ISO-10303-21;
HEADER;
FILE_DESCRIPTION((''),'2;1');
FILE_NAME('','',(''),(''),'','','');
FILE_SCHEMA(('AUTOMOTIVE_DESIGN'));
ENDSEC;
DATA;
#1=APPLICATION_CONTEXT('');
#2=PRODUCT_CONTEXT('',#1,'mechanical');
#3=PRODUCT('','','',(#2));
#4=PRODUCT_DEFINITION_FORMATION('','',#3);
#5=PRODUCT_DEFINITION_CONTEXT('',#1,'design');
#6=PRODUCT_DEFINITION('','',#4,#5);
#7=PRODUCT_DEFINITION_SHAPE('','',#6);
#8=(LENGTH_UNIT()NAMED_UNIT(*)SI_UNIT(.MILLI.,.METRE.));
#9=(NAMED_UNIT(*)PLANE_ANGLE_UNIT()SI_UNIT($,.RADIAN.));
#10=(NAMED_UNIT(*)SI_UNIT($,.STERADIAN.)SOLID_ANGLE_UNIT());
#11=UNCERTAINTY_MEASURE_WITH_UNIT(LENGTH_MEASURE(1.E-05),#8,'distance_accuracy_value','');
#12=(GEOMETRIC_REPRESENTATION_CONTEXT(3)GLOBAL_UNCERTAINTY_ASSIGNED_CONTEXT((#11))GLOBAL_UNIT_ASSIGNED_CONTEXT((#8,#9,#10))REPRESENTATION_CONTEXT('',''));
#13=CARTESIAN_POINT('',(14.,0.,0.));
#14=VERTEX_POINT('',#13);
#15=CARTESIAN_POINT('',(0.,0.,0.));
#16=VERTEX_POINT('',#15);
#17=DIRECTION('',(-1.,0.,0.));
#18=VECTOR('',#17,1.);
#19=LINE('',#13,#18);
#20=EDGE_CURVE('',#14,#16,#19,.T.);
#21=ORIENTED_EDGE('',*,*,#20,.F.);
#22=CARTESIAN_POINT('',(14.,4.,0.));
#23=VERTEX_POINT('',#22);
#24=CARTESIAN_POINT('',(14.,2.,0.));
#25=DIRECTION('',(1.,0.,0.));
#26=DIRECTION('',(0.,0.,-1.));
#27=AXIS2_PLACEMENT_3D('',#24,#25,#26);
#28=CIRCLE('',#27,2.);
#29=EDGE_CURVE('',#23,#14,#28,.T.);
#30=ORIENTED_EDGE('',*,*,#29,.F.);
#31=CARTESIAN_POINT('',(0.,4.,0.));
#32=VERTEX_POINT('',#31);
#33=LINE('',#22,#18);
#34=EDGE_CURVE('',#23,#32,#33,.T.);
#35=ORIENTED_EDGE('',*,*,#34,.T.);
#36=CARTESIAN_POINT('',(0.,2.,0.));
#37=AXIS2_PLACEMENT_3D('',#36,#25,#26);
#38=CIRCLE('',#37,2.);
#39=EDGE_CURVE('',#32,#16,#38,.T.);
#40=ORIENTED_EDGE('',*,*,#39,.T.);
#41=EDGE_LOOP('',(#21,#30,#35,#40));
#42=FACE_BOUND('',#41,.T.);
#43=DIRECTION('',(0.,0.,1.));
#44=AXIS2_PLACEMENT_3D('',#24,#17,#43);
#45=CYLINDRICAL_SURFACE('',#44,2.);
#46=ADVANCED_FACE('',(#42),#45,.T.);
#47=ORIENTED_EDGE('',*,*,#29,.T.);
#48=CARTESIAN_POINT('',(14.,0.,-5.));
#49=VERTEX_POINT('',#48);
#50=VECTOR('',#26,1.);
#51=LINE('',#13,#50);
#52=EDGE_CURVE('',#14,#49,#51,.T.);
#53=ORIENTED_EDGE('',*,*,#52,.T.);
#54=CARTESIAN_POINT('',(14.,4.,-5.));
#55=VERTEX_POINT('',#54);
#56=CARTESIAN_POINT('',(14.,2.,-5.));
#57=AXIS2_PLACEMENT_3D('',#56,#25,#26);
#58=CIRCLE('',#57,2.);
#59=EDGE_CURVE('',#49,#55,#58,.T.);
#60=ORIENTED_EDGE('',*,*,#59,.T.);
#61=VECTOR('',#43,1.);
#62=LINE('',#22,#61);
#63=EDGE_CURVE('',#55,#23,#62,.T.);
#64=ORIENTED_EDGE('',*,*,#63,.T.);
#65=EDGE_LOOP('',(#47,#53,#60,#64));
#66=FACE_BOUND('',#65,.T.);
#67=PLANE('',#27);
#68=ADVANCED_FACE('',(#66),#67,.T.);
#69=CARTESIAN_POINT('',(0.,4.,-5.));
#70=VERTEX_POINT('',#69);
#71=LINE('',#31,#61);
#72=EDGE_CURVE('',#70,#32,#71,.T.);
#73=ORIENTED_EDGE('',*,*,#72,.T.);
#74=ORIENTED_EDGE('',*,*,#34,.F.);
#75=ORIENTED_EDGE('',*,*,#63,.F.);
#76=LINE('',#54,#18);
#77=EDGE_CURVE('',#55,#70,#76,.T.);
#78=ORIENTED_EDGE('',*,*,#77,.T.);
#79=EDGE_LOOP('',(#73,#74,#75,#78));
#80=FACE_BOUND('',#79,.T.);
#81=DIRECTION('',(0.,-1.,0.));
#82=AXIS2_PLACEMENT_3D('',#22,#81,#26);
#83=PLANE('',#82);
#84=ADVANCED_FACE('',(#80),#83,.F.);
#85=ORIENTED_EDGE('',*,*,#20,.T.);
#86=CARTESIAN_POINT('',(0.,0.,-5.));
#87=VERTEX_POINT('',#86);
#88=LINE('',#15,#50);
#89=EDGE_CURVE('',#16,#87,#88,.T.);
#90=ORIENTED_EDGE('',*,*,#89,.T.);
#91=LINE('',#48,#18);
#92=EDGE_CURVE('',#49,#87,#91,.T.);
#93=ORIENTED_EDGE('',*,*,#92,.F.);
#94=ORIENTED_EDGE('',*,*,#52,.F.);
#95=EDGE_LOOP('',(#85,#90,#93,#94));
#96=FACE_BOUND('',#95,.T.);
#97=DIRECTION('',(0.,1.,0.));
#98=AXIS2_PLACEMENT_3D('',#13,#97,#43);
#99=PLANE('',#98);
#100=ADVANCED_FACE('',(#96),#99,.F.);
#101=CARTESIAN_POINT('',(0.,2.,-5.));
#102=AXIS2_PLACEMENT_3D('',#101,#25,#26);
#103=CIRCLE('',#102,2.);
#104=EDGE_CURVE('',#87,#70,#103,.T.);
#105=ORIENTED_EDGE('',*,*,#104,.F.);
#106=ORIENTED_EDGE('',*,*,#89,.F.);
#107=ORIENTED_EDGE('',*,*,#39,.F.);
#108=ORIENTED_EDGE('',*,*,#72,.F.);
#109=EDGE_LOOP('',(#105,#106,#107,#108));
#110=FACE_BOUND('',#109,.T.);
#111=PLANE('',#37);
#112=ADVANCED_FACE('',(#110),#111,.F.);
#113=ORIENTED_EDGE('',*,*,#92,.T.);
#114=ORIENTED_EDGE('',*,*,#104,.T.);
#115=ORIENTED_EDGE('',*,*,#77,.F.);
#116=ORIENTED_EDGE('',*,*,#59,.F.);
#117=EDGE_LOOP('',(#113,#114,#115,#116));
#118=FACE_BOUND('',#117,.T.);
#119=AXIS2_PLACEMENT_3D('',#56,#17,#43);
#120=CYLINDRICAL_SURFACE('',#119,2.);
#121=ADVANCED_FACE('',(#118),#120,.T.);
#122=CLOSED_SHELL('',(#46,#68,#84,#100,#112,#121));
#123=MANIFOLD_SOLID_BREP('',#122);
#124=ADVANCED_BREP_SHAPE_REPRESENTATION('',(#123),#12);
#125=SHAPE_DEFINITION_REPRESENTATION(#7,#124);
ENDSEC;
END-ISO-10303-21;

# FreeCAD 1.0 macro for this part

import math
import FreeCAD as App
import Part
import Sketcher
from FreeCAD import Vector

doc = App.newDocument("Part")
body = doc.addObject("PartDesign::Body", "Body")

# Sketch on YZ plane
sketch1 = doc.addObject("Sketcher::SketchObject", "Sketch")
body.addObject(sketch1)
sketch1.AttachmentSupport = (doc.YZ_Plane, [""])
sketch1.MapMode = "FlatFace"
sketch1.addGeometry([
    Part.LineSegment(Vector(0, 0, 0), Vector(0, -5, 0)),
    Part.ArcOfCircle(Part.Circle(Vector(2, -5, 0), Vector(0, 0, 1), 2), math.radians(180), math.radians(360)),
    Part.LineSegment(Vector(4, -5, 0), Vector(4, 0, 0)),
    Part.ArcOfCircle(Part.Circle(Vector(2, 0, 0), Vector(0, 0, 1), 2), math.radians(0), math.radians(180)),
], False)
sketch1.addConstraint([
    Sketcher.Constraint("Tangent", 0, 2, 1, 1),
    Sketcher.Constraint("Tangent", 1, 2, 2, 1),
    Sketcher.Constraint("Tangent", 2, 2, 3, 1),
    Sketcher.Constraint("Tangent", 3, 2, 0, 1),
    Sketcher.Constraint("Vertical", 0),
    Sketcher.Constraint("Vertical", 2),
    Sketcher.Constraint("Coincident", 3, 2, -1, 1),
    Sketcher.Constraint("Radius", 1, 2.0),
    Sketcher.Constraint("DistanceY", 0, 2, 0, 1, 5.0),
])
pad1 = doc.addObject("PartDesign::Pad", "Pad")
body.addObject(pad1)
pad1.Profile = sketch1
pad1.Length = 14

doc.recompute()
